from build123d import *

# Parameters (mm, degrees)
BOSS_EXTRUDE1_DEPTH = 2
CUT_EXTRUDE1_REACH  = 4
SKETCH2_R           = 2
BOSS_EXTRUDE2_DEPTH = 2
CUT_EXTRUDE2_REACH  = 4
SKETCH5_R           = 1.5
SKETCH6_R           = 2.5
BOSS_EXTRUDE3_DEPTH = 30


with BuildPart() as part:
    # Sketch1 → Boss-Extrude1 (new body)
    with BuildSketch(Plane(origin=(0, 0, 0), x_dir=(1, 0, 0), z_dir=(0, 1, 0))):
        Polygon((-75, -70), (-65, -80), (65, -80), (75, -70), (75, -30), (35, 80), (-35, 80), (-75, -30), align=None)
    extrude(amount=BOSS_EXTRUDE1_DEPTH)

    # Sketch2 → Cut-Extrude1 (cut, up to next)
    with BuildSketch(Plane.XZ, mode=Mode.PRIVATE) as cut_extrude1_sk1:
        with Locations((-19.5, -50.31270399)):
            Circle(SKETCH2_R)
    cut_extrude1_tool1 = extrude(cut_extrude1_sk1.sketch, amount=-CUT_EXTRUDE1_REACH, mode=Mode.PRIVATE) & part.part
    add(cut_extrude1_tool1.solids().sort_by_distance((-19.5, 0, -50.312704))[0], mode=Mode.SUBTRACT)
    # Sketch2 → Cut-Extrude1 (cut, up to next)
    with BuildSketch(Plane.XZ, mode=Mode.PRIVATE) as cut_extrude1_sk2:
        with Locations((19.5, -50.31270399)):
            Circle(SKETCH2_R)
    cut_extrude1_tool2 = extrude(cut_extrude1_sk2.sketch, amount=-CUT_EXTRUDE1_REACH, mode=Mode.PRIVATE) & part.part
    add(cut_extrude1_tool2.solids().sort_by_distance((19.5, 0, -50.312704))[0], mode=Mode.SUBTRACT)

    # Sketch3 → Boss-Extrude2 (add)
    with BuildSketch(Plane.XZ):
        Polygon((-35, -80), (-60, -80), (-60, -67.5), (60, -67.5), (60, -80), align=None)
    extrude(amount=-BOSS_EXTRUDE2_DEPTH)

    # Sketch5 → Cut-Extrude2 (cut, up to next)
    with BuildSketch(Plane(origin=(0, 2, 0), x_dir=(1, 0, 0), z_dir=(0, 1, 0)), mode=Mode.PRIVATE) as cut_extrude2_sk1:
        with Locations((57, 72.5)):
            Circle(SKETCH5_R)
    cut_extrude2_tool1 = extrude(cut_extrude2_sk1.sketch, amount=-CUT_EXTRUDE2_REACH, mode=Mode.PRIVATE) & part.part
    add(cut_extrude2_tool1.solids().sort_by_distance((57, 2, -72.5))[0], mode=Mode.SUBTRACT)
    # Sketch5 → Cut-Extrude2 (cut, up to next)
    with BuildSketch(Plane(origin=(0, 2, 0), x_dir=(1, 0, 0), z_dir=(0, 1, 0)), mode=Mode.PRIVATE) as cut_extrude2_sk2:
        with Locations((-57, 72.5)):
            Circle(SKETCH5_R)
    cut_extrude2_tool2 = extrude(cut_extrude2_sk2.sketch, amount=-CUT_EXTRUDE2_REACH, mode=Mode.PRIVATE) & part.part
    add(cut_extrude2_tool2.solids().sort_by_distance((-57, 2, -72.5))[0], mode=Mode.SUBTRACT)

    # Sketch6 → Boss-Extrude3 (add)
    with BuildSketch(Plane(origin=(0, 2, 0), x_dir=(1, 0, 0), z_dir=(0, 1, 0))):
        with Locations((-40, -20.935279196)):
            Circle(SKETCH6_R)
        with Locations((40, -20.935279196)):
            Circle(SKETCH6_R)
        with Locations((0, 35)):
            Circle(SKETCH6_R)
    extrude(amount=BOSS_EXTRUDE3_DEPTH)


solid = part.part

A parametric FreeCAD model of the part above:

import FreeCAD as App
import Part
import Sketcher
Q = App.Units.Quantity


def add_polygon(sketch, points):
    """Adds a closed chain of lines whose ends are joined by coincident constraints."""
    first, n = sketch.GeometryCount, len(points)
    for a, b in zip(points, points[1:] + points[:1]):
        sketch.addGeometry(Part.LineSegment(App.Vector(*a, 0), App.Vector(*b, 0)), False)
    for i in range(n):
        sketch.addConstraint(Sketcher.Constraint("Coincident", first + i, 2, first + (i + 1) % n, 1))

doc = App.newDocument("Part")
body = doc.addObject("PartDesign::Body", "Body")

# Sketch on XZ plane
sketch1 = body.newObject("Sketcher::SketchObject", "Sketch")
sketch1.AttachmentSupport = (doc.getObject("XZ_Plane"), [""])
sketch1.MapMode = "FlatFace"
add_polygon(sketch1, [(-75, 70), (-65, 80), (65, 80), (75, 70), (75, 30), (35, -80), (-35, -80), (-75, 30)])  # lines 0-7
sketch1.addConstraint([
    Sketcher.Constraint("Horizontal", 1),
    Sketcher.Constraint("Vertical", 3),
    Sketcher.Constraint("Horizontal", 5),
    Sketcher.Constraint("Vertical", 7),
    Sketcher.Constraint("Symmetric", 3, 2, 6, 2, -2),
    Sketcher.Constraint("Perpendicular", 0, 2),
    Sketcher.Constraint("Horizontal", 2, 2, 7, 2),
    Sketcher.Constraint("Equal", 0, 2),
    Sketcher.Constraint("Equal", 4, 6),
    Sketcher.Constraint("DistanceX", 1, 1, 1, 2, Q("130 mm")),
    Sketcher.Constraint("DistanceX", 5, 2, 5, 1, Q("70 mm")),
    Sketcher.Constraint("DistanceY", 3, 2, 3, 1, Q("40 mm")),
    Sketcher.Constraint("DistanceY", -1, 1, 0, 2, Q("80 mm")),
    Sketcher.Constraint("DistanceX", -1, 1, 2, 2, Q("75 mm")),
    Sketcher.Constraint("DistanceY", 4, 2, -1, 1, Q("80 mm")),
])
pad1 = body.newObject("PartDesign::Pad", "Pad")
pad1.Profile = sketch1
pad1.Length = 2
pad1.Reversed = True

# Sketch on XZ plane
sketch2 = body.newObject("Sketcher::SketchObject", "Sketch001")
sketch2.AttachmentSupport = (doc.getObject("XZ_Plane"), [""])
sketch2.MapMode = "FlatFace"
sketch2.addGeometry(Part.Circle(App.Vector(-19.5, -50.3, 0), App.Vector(0, 0, 1), 2), False)
sketch2.addConstraint([
    Sketcher.Constraint("Diameter", 0, Q("4 mm")),
    Sketcher.Constraint("DistanceX", 0, 3, -1, 1, Q("19.5 mm")),
    Sketcher.Constraint("DistanceY", 0, 3, -1, 1, Q("50.312704 mm")),
])
pocket1 = body.newObject("PartDesign::Pocket", "Pocket")
pocket1.Profile = sketch2
pocket1.Type = "UpToFirst"

# Sketch on XZ plane
sketch3 = body.newObject("Sketcher::SketchObject", "Sketch002")
sketch3.AttachmentSupport = (doc.getObject("XZ_Plane"), [""])
sketch3.MapMode = "FlatFace"
sketch3.addGeometry(Part.Circle(App.Vector(19.5, -50.3, 0), App.Vector(0, 0, 1), 2), False)
sketch3.addConstraint([
    Sketcher.Constraint("Diameter", 0, Q("4 mm")),
    Sketcher.Constraint("DistanceX", -1, 1, 0, 3, Q("19.5 mm")),
    Sketcher.Constraint("DistanceY", 0, 3, -1, 1, Q("50.312704 mm")),
])
pocket2 = body.newObject("PartDesign::Pocket", "Pocket001")
pocket2.Profile = sketch3
pocket2.Type = "UpToFirst"

# Sketch on XZ plane
sketch4 = body.newObject("Sketcher::SketchObject", "Sketch003")
sketch4.AttachmentSupport = (doc.getObject("XZ_Plane"), [""])
sketch4.MapMode = "FlatFace"
add_polygon(sketch4, [(-60, -80), (60, -80), (60, -68), (-60, -68)])  # lines 0-3
sketch4.addConstraint([
    Sketcher.Constraint("Horizontal", 0),
    Sketcher.Constraint("Vertical", 1),
    Sketcher.Constraint("Horizontal", 2),
    Sketcher.Constraint("Vertical", 3),
    Sketcher.Constraint("DistanceX", 0, 1, 0, 2, Q("120 mm")),
    Sketcher.Constraint("DistanceY", 1, 1, 1, 2, Q("12.5 mm")),
    Sketcher.Constraint("DistanceX", -1, 1, 0, 2, Q("60 mm")),
    Sketcher.Constraint("DistanceY", 0, 2, -1, 1, Q("80 mm")),
])
pad2 = body.newObject("PartDesign::Pad", "Pad001")
pad2.Profile = sketch4
pad2.Length = 2
pad2.Reversed = True

# Sketch on XZ plane
sketch5 = body.newObject("Sketcher::SketchObject", "Sketch004")
sketch5.AttachmentSupport = (doc.getObject("XZ_Plane"), [""])
sketch5.MapMode = "FlatFace"
sketch5.AttachmentOffset = App.Placement(App.Vector(0, 0, -2), App.Rotation())
sketch5.addGeometry(Part.Circle(App.Vector(57, -72.5, 0), App.Vector(0, 0, 1), 1.5), False)
sketch5.addConstraint([
    Sketcher.Constraint("Diameter", 0, Q("3 mm")),
    Sketcher.Constraint("DistanceX", -1, 1, 0, 3, Q("57 mm")),
    Sketcher.Constraint("DistanceY", 0, 3, -1, 1, Q("72.5 mm")),
])
pocket3 = body.newObject("PartDesign::Pocket", "Pocket002")
pocket3.Profile = sketch5
pocket3.Type = "UpToFirst"
pocket3.Reversed = True

# Sketch on XZ plane
sketch6 = body.newObject("Sketcher::SketchObject", "Sketch005")
sketch6.AttachmentSupport = (doc.getObject("XZ_Plane"), [""])
sketch6.MapMode = "FlatFace"
sketch6.AttachmentOffset = App.Placement(App.Vector(0, 0, -2), App.Rotation())
sketch6.addGeometry(Part.Circle(App.Vector(-57, -72.5, 0), App.Vector(0, 0, 1), 1.5), False)
sketch6.addConstraint([
    Sketcher.Constraint("Diameter", 0, Q("3 mm")),
    Sketcher.Constraint("DistanceX", 0, 3, -1, 1, Q("57 mm")),
    Sketcher.Constraint("DistanceY", 0, 3, -1, 1, Q("72.5 mm")),
])
pocket4 = body.newObject("PartDesign::Pocket", "Pocket003")
pocket4.Profile = sketch6
pocket4.Type = "UpToFirst"
pocket4.Reversed = True

# Sketch on XZ plane
sketch7 = body.newObject("Sketcher::SketchObject", "Sketch006")
sketch7.AttachmentSupport = (doc.getObject("XZ_Plane"), [""])
sketch7.MapMode = "FlatFace"
sketch7.AttachmentOffset = App.Placement(App.Vector(0, 0, -2), App.Rotation())
sketch7.addGeometry([
    Part.Circle(App.Vector(-40, 20.9, 0), App.Vector(0, 0, 1), 2.5),
    Part.Circle(App.Vector(40, 20.9, 0), App.Vector(0, 0, 1), 2.5),
    Part.Circle(App.Vector(0, -35, 0), App.Vector(0, 0, 1), 2.5),
], False)
sketch7.addConstraint([
    Sketcher.Constraint("Equal", 0, 1),
    Sketcher.Constraint("Equal", 1, 2),
    Sketcher.Constraint("Symmetric", 0, 3, 1, 3, -2),
    Sketcher.Constraint("PointOnObject", 2, 3, -2),
    Sketcher.Constraint("Diameter", 0, Q("5 mm")),
    Sketcher.Constraint("DistanceX", 0, 3, -1, 1, Q("40 mm")),
    Sketcher.Constraint("DistanceY", 2, 3, -1, 1, Q("35 mm")),
    Sketcher.Constraint("DistanceY", -1, 1, 0, 3, Q("20.935279 mm")),
])
pad3 = body.newObject("PartDesign::Pad", "Pad002")
pad3.Profile = sketch7
pad3.Length = 30
pad3.Reversed = True

doc.recompute()
